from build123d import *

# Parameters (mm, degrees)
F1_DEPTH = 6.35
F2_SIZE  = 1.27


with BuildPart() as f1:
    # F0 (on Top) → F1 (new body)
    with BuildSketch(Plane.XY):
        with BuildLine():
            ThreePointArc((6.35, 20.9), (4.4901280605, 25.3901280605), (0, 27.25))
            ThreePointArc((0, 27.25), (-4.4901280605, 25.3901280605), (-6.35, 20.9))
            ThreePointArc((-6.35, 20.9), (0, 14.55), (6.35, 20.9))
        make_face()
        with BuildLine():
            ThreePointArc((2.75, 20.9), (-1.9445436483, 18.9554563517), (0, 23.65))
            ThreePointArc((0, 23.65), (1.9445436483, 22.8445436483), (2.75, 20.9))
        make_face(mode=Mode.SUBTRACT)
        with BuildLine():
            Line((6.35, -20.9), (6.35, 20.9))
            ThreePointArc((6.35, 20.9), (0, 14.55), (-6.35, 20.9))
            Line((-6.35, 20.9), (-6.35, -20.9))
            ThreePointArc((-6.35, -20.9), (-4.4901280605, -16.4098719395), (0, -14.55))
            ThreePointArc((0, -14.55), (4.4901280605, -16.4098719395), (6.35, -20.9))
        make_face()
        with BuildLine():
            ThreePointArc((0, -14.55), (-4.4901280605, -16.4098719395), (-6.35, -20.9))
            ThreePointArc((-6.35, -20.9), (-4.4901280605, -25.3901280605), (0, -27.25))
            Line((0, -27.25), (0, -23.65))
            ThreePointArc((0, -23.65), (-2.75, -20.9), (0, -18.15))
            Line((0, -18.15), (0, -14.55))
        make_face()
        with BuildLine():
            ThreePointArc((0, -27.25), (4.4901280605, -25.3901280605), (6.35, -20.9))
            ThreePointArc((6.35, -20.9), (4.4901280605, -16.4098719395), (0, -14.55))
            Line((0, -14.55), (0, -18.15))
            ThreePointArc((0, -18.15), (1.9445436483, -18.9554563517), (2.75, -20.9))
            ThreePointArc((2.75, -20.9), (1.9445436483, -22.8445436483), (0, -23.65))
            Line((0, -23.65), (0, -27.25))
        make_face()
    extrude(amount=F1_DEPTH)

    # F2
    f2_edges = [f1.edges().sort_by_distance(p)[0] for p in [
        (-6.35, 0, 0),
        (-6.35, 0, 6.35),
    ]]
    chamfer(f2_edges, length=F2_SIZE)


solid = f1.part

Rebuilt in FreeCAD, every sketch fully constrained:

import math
import FreeCAD as App
import Part
import Sketcher
from FreeCAD import Vector
Q = App.Units.Quantity


def edges_at(feature, points):
    """Names of the edges that pass closest to the given points."""
    edges = feature.Shape.Edges
    near = lambda p: min(range(len(edges)), key=lambda i: edges[i].distToShape(Part.Vertex(*p))[0])
    return sorted({f"Edge{near(p) + 1}" for p in points})

doc = App.newDocument("Part")
body = doc.addObject("PartDesign::Body", "Body")

# Sketch on XY plane
sketch1 = body.newObject("Sketcher::SketchObject", "Sketch")
sketch1.AttachmentSupport = (doc.getObject("XY_Plane"), [""])
sketch1.MapMode = "FlatFace"
sketch1.addGeometry(Part.ArcOfCircle(Part.Circle(Vector(0, 20.9, 0), Vector(0, 0, 1), 6.3), math.radians(0), math.radians(90)), False)
sketch1.addGeometry(Part.ArcOfCircle(Part.Circle(Vector(0, 20.9, 0), Vector(0, 0, 1), 6.3), math.radians(90), math.radians(180)), False)
sketch1.addGeometry(Part.LineSegment(Vector(-6.3, 20.9, 0), Vector(-6.3, -20.9, 0)), False)
sketch1.addGeometry(Part.ArcOfCircle(Part.Circle(Vector(0, -20.9, 0), Vector(0, 0, 1), 6.3), math.radians(180), math.radians(270)), False)
sketch1.addGeometry(Part.ArcOfCircle(Part.Circle(Vector(0, -20.9, 0), Vector(0, 0, 1), 6.3), math.radians(-90), math.radians(0)), False)
sketch1.addGeometry(Part.LineSegment(Vector(6.3, -20.9, 0), Vector(6.3, 20.9, 0)), False)
sketch1.addGeometry(Part.ArcOfCircle(Part.Circle(Vector(0, -20.9, 0), Vector(0, 0, 1), 2.8), math.radians(90), math.radians(270)), False)
sketch1.addGeometry(Part.ArcOfCircle(Part.Circle(Vector(0, -20.9, 0), Vector(0, 0, 1), 2.8), math.radians(0), math.radians(90)), False)
sketch1.addGeometry(Part.ArcOfCircle(Part.Circle(Vector(0, -20.9, 0), Vector(0, 0, 1), 2.8), math.radians(-90), math.radians(0)), False)
sketch1.addGeometry(Part.ArcOfCircle(Part.Circle(Vector(0, 20.9, 0), Vector(0, 0, 1), 2.8), math.radians(0), math.radians(90)), False)
sketch1.addGeometry(Part.ArcOfCircle(Part.Circle(Vector(0, 20.9, 0), Vector(0, 0, 1), 2.8), math.radians(90), math.radians(360)), False)
sketch1.addConstraint(Sketcher.Constraint("Tangent", 0, 2, 1, 1))
sketch1.addConstraint(Sketcher.Constraint("Tangent", 1, 2, 2, 1))
sketch1.addConstraint(Sketcher.Constraint("Tangent", 2, 2, 3, 1))
sketch1.addConstraint(Sketcher.Constraint("Tangent", 3, 2, 4, 1))
sketch1.addConstraint(Sketcher.Constraint("Tangent", 4, 2, 5, 1))
sketch1.addConstraint(Sketcher.Constraint("Tangent", 5, 2, 0, 1))
sketch1.addConstraint(Sketcher.Constraint("Tangent", 6, 1, 7, 2))
sketch1.addConstraint(Sketcher.Constraint("Tangent", 7, 1, 8, 2))
sketch1.addConstraint(Sketcher.Constraint("Tangent", 8, 1, 6, 2))
sketch1.addConstraint(Sketcher.Constraint("Tangent", 9, 1, 10, 2))
sketch1.addConstraint(Sketcher.Constraint("Coincident", 10, 1, 9, 2))
sketch1.addConstraint(Sketcher.Constraint("Vertical", 2))
sketch1.addConstraint(Sketcher.Constraint("Vertical", 5))
sketch1.addConstraint(Sketcher.Constraint("Coincident", 6, 3, 3, 3))
sketch1.addConstraint(Sketcher.Constraint("Coincident", 9, 3, 0, 3))
sketch1.addConstraint(Sketcher.Constraint("Equal", 0, 1))
sketch1.addConstraint(Sketcher.Constraint("Equal", 1, 3))
sketch1.addConstraint(Sketcher.Constraint("Equal", 8, 9))
sketch1.addConstraint(Sketcher.Constraint("Symmetric", 0, 3, 3, 3, -1, 1))
sketch1.addConstraint(Sketcher.Constraint("PointOnObject", 0, 2, -2))
sketch1.addConstraint(Sketcher.Constraint("PointOnObject", 3, 2, -2))
sketch1.addConstraint(Sketcher.Constraint("PointOnObject", 6, 1, -2))
sketch1.addConstraint(Sketcher.Constraint("PointOnObject", 8, 1, -2))
sketch1.addConstraint(Sketcher.Constraint("PointOnObject", 10, 1, -2))
sketch1.addConstraint(Sketcher.Constraint("Horizontal", 4, 2, 7, 1))
sketch1.addConstraint(Sketcher.Constraint("Horizontal", 5, 2, 9, 1))
sketch1.addConstraint(Sketcher.Constraint("Radius", 0, Q("0.25 in")))
sketch1.addConstraint(Sketcher.Constraint("Radius", 6, Q("2.75 mm")))
sketch1.addConstraint(Sketcher.Constraint("DistanceY", 2, 2, 2, 1, Q("41.8 mm")))
pad1 = body.newObject("PartDesign::Pad", "Pad")
pad1.Profile = sketch1
pad1.Length = Q("0.25 in")
doc.recompute()

chamfer = body.newObject("PartDesign::Chamfer", "Chamfer")
chamfer.Base = (pad1, edges_at(pad1, [(-6.35, 0, 0), (-6.35, 0, 6.35)]))
chamfer.Size = Q("0.05 in")

doc.recompute()
